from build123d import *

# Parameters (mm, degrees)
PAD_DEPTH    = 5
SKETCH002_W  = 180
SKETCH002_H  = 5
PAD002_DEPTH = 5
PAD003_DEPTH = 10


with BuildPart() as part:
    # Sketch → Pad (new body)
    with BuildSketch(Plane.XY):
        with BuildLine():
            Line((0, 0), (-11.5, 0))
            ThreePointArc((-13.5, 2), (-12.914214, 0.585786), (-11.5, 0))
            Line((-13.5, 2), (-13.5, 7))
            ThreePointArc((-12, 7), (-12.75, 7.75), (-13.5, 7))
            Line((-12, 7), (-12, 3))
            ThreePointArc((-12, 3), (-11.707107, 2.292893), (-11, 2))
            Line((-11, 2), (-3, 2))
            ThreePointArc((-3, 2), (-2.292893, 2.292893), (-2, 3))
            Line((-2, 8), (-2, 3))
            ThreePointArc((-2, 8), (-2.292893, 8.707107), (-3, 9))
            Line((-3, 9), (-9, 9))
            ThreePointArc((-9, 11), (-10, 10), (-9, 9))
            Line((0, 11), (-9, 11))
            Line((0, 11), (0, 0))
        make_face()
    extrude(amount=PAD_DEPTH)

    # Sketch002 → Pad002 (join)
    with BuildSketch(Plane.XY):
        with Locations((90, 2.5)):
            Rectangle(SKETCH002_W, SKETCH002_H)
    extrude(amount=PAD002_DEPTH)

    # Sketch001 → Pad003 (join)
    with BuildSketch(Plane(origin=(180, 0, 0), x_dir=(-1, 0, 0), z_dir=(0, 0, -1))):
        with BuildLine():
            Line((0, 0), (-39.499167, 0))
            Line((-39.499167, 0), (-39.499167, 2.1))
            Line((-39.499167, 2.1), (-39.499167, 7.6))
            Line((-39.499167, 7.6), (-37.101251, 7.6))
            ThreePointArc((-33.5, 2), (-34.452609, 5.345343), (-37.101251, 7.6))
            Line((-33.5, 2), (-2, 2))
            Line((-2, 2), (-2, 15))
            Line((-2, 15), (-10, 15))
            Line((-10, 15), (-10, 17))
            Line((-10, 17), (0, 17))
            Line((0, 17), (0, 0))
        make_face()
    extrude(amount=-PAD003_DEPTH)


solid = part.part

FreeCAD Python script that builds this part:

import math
import FreeCAD as App
import Part
import Sketcher
from FreeCAD import Vector


def add_polygon(sketch, points):
    """Adds a closed chain of lines whose ends are joined by coincident constraints."""
    first, n = sketch.GeometryCount, len(points)
    for a, b in zip(points, points[1:] + points[:1]):
        sketch.addGeometry(Part.LineSegment(App.Vector(*a, 0), App.Vector(*b, 0)), False)
    for i in range(n):
        sketch.addConstraint(Sketcher.Constraint("Coincident", first + i, 2, first + (i + 1) % n, 1))

doc = App.newDocument("Part")
params = doc.addObject("Spreadsheet::Sheet", "Params")
for row, (alias, value) in enumerate([
    ("sketch1_radius", "1 mm"),
    ("sketch1_radius2", "1.999999 mm"),
    ("sketch1_width", "9 mm"),
    ("sketch1_width2", "6 mm"),
    ("sketch1_width3", "8 mm"),
    ("pad1_length", "5 mm"),
    ("sketch2_width", "180 mm"),
    ("sketch2_height", "5 mm"),
    ("pad2_length", "5 mm"),
    ("sketch3_radius", "6.000002 mm"),
    ("sketch3_width", "10 mm"),
    ("sketch3_width2", "8 mm"),
    ("sketch3_height", "17 mm"),
    ("sketch3_height2", "2 mm"),
    ("pad3_length", "10 mm"),
], start=1):
    params.set(f"A{row}", alias)
    params.set(f"B{row}", "=" + value)
    params.setAlias(f"B{row}", alias)

body = doc.addObject("PartDesign::Body", "Body")

sketch1 = body.newObject("Sketcher::SketchObject", "Sketch")
sketch1.AttachmentSupport = (doc.getObject("XY_Plane"), [""])
sketch1.MapMode = "FlatFace"
sketch1.addGeometry([
    Part.LineSegment(Vector(-11.5, 0, 0), Vector(0, 0, 0)),
    Part.LineSegment(Vector(0, 0, 0), Vector(0, 11, 0)),
    Part.LineSegment(Vector(0, 11, 0), Vector(-9, 11, 0)),
    Part.ArcOfCircle(Part.Circle(Vector(-9, 10, 0), Vector(0, 0, 1), 1), math.radians(90), math.radians(270)),
    Part.LineSegment(Vector(-9, 9, 0), Vector(-3, 9, 0)),
    Part.ArcOfCircle(Part.Circle(Vector(-2.999999, 8.000001, 0), Vector(0, 0, 1), 0.999999), math.radians(-0.000043), math.radians(90.000043)),
    Part.LineSegment(Vector(-2, 8, 0), Vector(-2, 3, 0)),
    Part.ArcOfCircle(Part.Circle(Vector(-2.999999, 2.999999, 0), Vector(0, 0, 1), 0.999999), math.radians(-90.000043), math.radians(0.000043)),
    Part.LineSegment(Vector(-3, 2, 0), Vector(-11, 2, 0)),
    Part.ArcOfCircle(Part.Circle(Vector(-11.000001, 2.999999, 0), Vector(0, 0, 1), 0.999999), math.radians(179.999957), math.radians(270.000043)),
    Part.LineSegment(Vector(-12, 3, 0), Vector(-12, 7, 0)),
    Part.ArcOfCircle(Part.Circle(Vector(-12.75, 7, 0), Vector(0, 0, 1), 0.75), math.radians(0), math.radians(180)),
    Part.LineSegment(Vector(-13.5, 7, 0), Vector(-13.5, 2, 0)),
    Part.ArcOfCircle(Part.Circle(Vector(-11.500001, 1.999999, 0), Vector(0, 0, 1), 1.999999), math.radians(179.999957), math.radians(270.000043)),
], False)
sketch1.addConstraint([
    Sketcher.Constraint("Coincident", 0, 2, 1, 1),
    Sketcher.Constraint("Coincident", 1, 2, 2, 1),
    Sketcher.Constraint("Tangent", 2, 2, 3, 1),
    Sketcher.Constraint("Tangent", 3, 2, 4, 1),
    Sketcher.Constraint("Tangent", 4, 2, 5, 2),
    Sketcher.Constraint("Tangent", 5, 1, 6, 1),
    Sketcher.Constraint("Tangent", 6, 2, 7, 2),
    Sketcher.Constraint("Tangent", 7, 1, 8, 1),
    Sketcher.Constraint("Tangent", 8, 2, 9, 2),
    Sketcher.Constraint("Tangent", 9, 1, 10, 1),
    Sketcher.Constraint("Tangent", 10, 2, 11, 1),
    Sketcher.Constraint("Tangent", 11, 2, 12, 1),
    Sketcher.Constraint("Tangent", 12, 2, 13, 1),
    Sketcher.Constraint("Tangent", 13, 2, 0, 1),
    Sketcher.Constraint("Horizontal", 0),
    Sketcher.Constraint("Vertical", 1),
    Sketcher.Constraint("Horizontal", 2),
    Sketcher.Constraint("Horizontal", 4),
    Sketcher.Constraint("Vertical", 6),
    Sketcher.Constraint("Horizontal", 8),
    Sketcher.Constraint("Vertical", 10),
    Sketcher.Constraint("Vertical", 12),
    Sketcher.Constraint("Coincident", 0, 2, -1, 1),
    Sketcher.Constraint("Equal", 3, 5),
    Sketcher.Constraint("Equal", 5, 7),
    Sketcher.Constraint("Equal", 7, 9),
    Sketcher.Constraint("Horizontal", 13, 3, 7, 1),
    Sketcher.Constraint("Equal", 6, 12),
    Sketcher.Constraint("Radius", 3, 1.0),
    Sketcher.Constraint("Radius", 13, 1.999999),
    Sketcher.Constraint("DistanceX", 2, 2, 2, 1, 9.0),
    Sketcher.Constraint("DistanceX", 4, 1, 4, 2, 6.0),
    Sketcher.Constraint("DistanceX", 8, 2, 8, 1, 8.0),
    Sketcher.Constraint("DistanceY", 1, 1, 1, 2, 11.0),
    Sketcher.Constraint("Radius", 11, 0.75),
])
sketch1.setExpression("Constraints[28]", "Params.sketch1_radius")
sketch1.setExpression("Constraints[29]", "Params.sketch1_radius2")
sketch1.setExpression("Constraints[30]", "Params.sketch1_width")
sketch1.setExpression("Constraints[31]", "Params.sketch1_width2")
sketch1.setExpression("Constraints[32]", "Params.sketch1_width3")
pad1 = body.newObject("PartDesign::Pad", "Pad")
pad1.Profile = sketch1
pad1.setExpression("Length", "Params.pad1_length")

sketch2 = body.newObject("Sketcher::SketchObject", "Sketch001")
sketch2.AttachmentSupport = (doc.getObject("XY_Plane"), [""])
sketch2.MapMode = "FlatFace"
add_polygon(sketch2, [(0, 5), (0, 0), (180, 0), (180, 5)])
sketch2.addConstraint([
    Sketcher.Constraint("Vertical", 0),
    Sketcher.Constraint("Horizontal", 1),
    Sketcher.Constraint("Vertical", 2),
    Sketcher.Constraint("Horizontal", 3),
    Sketcher.Constraint("Coincident", 0, 2, -1, 1),
    Sketcher.Constraint("DistanceX", 1, 1, 1, 2, 180.0),
    Sketcher.Constraint("DistanceY", 0, 2, 0, 1, 5.0),
])
sketch2.setExpression("Constraints[9]", "Params.sketch2_width")
sketch2.setExpression("Constraints[10]", "Params.sketch2_height")
pad2 = body.newObject("PartDesign::Pad", "Pad001")
pad2.Profile = sketch2
pad2.setExpression("Length", "Params.pad2_length")

sketch3 = body.newObject("Sketcher::SketchObject", "Sketch002")
sketch3.AttachmentSupport = (doc.getObject("XY_Plane"), [""])
sketch3.MapMode = "FlatFace"
sketch3.addGeometry([
    Part.LineSegment(Vector(219.499167, 0, 0), Vector(180, 0, 0)),
    Part.LineSegment(Vector(180, 0, 0), Vector(180, 17, 0)),
    Part.LineSegment(Vector(180, 17, 0), Vector(190, 17, 0)),
    Part.LineSegment(Vector(190, 17, 0), Vector(190, 15, 0)),
    Part.LineSegment(Vector(190, 15, 0), Vector(182, 15, 0)),
    Part.LineSegment(Vector(182, 15, 0), Vector(182, 2, 0)),
    Part.LineSegment(Vector(182, 2, 0), Vector(213.5, 2, 0)),
    Part.ArcOfCircle(Part.Circle(Vector(219.499169, 2.099999, 0), Vector(0, 0, 1), 6.000002), math.radians(113.556475), math.radians(180.954961)),
    Part.LineSegment(Vector(217.101251, 7.6, 0), Vector(219.499167, 7.6, 0)),
    Part.LineSegment(Vector(219.499167, 7.6, 0), Vector(219.499167, 0, 0)),
], False)
sketch3.addConstraint([
    Sketcher.Constraint("Coincident", 0, 2, 1, 1),
    Sketcher.Constraint("Coincident", 1, 2, 2, 1),
    Sketcher.Constraint("Coincident", 2, 2, 3, 1),
    Sketcher.Constraint("Coincident", 3, 2, 4, 1),
    Sketcher.Constraint("Coincident", 4, 2, 5, 1),
    Sketcher.Constraint("Coincident", 5, 2, 6, 1),
    Sketcher.Constraint("Coincident", 6, 2, 7, 2),
    Sketcher.Constraint("Coincident", 7, 1, 8, 1),
    Sketcher.Constraint("Coincident", 8, 2, 9, 1),
    Sketcher.Constraint("Coincident", 9, 2, 0, 1),
    Sketcher.Constraint("Horizontal", 0),
    Sketcher.Constraint("Vertical", 1),
    Sketcher.Constraint("Horizontal", 2),
    Sketcher.Constraint("Vertical", 3),
    Sketcher.Constraint("Horizontal", 4),
    Sketcher.Constraint("Vertical", 5),
    Sketcher.Constraint("Horizontal", 6),
    Sketcher.Constraint("Horizontal", 8),
    Sketcher.Constraint("Vertical", 9),
    Sketcher.Constraint("PointOnObject", 0, 2, -1),
    Sketcher.Constraint("Vertical", 7, 3, 8, 2),
    Sketcher.Constraint("Radius", 7, 6.000002),
    Sketcher.Constraint("DistanceX", 2, 1, 2, 2, 10.0),
    Sketcher.Constraint("DistanceX", 4, 2, 4, 1, 8.0),
    Sketcher.Constraint("DistanceY", 1, 1, 1, 2, 17.0),
    Sketcher.Constraint("DistanceY", 3, 2, 3, 1, 2.0),
    Sketcher.Constraint("DistanceY", 5, 2, 5, 1, 13.0),
    Sketcher.Constraint("DistanceX", 6, 1, 6, 2, 31.5),
    Sketcher.Constraint("DistanceY", 9, 2, 9, 1, 7.6),
    Sketcher.Constraint("DistanceX", -1, 1, 0, 2, 180.0),
    Sketcher.Constraint("DistanceY", -1, 1, 7, 3, 2.099999),
])
sketch3.setExpression("Constraints[21]", "Params.sketch3_radius")
sketch3.setExpression("Constraints[22]", "Params.sketch3_width")
sketch3.setExpression("Constraints[23]", "Params.sketch3_width2")
sketch3.setExpression("Constraints[24]", "Params.sketch3_height")
sketch3.setExpression("Constraints[25]", "Params.sketch3_height2")
pad3 = body.newObject("PartDesign::Pad", "Pad002")
pad3.Profile = sketch3
pad3.setExpression("Length", "Params.pad3_length")

doc.recompute()
